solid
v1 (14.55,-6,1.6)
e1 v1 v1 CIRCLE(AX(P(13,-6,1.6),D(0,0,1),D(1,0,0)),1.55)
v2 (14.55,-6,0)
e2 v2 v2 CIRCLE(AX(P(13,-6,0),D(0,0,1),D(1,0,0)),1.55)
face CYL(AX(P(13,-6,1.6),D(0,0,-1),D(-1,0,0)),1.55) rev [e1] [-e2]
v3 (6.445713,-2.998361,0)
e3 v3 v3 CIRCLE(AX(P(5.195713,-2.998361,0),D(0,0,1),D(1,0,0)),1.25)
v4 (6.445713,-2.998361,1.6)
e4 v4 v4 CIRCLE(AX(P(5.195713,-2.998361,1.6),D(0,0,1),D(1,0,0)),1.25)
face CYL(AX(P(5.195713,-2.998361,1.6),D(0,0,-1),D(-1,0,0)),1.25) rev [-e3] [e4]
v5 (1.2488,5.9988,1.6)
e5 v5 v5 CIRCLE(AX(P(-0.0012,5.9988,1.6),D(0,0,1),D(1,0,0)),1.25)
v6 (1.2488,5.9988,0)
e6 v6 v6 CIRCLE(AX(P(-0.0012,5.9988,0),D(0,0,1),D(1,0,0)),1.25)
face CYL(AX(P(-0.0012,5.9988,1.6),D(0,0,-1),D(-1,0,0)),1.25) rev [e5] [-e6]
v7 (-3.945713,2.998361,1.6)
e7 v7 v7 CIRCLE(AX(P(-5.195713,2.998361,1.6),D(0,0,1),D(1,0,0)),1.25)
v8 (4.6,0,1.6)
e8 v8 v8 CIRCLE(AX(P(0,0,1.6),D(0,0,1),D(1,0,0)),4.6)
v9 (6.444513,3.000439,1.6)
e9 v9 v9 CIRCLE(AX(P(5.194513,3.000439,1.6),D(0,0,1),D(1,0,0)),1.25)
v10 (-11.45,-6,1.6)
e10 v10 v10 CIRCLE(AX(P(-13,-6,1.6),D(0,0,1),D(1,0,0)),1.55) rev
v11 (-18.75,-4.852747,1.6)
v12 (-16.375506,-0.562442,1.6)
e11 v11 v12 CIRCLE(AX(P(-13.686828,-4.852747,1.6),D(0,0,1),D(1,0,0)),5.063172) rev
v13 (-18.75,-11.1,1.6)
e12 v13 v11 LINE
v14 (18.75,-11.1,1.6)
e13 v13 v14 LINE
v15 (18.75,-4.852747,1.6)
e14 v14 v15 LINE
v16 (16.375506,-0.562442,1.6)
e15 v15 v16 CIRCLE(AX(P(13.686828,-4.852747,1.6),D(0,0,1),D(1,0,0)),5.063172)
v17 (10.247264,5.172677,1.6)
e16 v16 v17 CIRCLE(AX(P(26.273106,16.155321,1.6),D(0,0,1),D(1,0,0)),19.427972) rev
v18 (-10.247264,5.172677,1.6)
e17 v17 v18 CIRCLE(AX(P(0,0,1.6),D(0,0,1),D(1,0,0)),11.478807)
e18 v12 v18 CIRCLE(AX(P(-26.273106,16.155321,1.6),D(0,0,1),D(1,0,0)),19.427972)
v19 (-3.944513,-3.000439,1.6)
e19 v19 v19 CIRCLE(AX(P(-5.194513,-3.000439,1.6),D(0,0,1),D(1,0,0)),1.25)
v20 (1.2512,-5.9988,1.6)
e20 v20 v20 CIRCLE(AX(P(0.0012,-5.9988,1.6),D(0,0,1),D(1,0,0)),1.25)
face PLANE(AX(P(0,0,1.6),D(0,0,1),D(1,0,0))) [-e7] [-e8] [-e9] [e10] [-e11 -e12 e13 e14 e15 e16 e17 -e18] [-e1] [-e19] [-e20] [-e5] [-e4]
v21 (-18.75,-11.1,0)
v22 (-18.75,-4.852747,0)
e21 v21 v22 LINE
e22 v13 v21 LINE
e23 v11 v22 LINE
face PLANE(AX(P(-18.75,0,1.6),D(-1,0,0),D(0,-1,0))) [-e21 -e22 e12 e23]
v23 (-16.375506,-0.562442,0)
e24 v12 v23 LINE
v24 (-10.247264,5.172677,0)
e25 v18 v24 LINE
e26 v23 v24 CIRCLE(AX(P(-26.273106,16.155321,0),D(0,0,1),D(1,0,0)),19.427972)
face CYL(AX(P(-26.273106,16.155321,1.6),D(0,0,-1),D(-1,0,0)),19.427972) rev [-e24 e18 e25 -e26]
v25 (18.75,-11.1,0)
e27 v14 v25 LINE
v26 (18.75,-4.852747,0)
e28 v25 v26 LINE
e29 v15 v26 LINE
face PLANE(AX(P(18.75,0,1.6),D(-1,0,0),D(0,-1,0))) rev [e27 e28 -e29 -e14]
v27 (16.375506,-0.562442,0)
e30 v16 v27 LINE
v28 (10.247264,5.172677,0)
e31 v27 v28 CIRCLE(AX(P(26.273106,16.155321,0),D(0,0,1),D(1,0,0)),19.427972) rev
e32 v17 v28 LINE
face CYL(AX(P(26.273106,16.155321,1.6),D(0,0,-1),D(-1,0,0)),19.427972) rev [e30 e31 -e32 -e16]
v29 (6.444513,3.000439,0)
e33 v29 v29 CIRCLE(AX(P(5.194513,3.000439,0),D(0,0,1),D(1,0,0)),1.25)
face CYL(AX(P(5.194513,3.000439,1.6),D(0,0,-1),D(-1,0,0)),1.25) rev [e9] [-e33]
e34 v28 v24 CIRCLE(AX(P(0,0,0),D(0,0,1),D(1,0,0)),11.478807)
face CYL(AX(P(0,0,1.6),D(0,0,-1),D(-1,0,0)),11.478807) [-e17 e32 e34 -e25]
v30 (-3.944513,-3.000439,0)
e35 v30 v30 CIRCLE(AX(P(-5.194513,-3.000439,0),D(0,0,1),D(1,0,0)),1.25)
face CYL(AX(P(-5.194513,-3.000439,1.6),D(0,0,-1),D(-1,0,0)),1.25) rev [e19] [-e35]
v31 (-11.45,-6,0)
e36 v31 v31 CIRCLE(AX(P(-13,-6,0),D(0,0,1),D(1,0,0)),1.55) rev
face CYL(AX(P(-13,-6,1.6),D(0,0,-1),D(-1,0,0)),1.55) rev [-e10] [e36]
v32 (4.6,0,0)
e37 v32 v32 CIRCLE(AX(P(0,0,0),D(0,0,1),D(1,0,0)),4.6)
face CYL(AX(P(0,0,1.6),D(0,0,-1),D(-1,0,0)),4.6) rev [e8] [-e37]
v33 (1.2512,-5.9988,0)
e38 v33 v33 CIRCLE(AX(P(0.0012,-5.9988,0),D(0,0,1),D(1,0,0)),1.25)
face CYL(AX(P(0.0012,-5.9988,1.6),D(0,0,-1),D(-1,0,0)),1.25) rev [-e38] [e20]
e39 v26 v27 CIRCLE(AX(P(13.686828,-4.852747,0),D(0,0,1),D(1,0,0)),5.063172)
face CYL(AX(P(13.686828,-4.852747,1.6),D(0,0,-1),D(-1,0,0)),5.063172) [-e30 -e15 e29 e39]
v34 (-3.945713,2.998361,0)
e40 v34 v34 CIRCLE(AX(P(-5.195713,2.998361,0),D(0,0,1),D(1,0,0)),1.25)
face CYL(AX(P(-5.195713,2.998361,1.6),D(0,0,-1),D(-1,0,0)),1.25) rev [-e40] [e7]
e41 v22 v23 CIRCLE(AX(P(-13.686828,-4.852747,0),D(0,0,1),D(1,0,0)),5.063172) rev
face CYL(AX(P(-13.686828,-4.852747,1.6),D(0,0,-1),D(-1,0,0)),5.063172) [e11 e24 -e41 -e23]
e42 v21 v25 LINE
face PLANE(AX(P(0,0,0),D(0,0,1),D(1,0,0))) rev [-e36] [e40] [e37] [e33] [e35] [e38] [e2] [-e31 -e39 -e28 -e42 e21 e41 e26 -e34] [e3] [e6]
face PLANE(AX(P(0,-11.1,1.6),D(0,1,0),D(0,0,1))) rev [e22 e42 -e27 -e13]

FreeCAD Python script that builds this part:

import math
import FreeCAD as App
import Part
import Sketcher
Q = App.Units.Quantity

doc = App.newDocument("Part")
body = doc.addObject("PartDesign::Body", "Body")

sketch1 = body.newObject("Sketcher::SketchObject", "Sketch")
sketch1.AttachmentSupport = (doc.getObject("XY_Plane"), [""])
sketch1.MapMode = "FlatFace"
sketch1.addGeometry(Part.LineSegment(App.Vector(-18.75, -11.1, 0), App.Vector(18.75, -11.1, 0)), False)
sketch1.addGeometry(Part.LineSegment(App.Vector(18.75, -11.1, 0), App.Vector(18.75, -4.852747, 0)), False)
sketch1.addGeometry(Part.ArcOfCircle(Part.Circle(App.Vector(13.686828, -4.852747, 0), App.Vector(0, 0, 1), 5.063172), math.radians(0), math.radians(57.925165)), False)
sketch1.addGeometry(Part.ArcOfCircle(Part.Circle(App.Vector(26.273106, 16.155321, 0), App.Vector(0, 0, 1), 19.427972), math.radians(-145.57683), math.radians(-120.627268)), False)
sketch1.addGeometry(Part.ArcOfCircle(Part.Circle(App.Vector(0, 0, 0), App.Vector(0, 0, 1), 11.478807), math.radians(26.784011), math.radians(153.215989)), False)
sketch1.addGeometry(Part.ArcOfCircle(Part.Circle(App.Vector(-26.273106, 16.155321, 0), App.Vector(0, 0, 1), 19.427972), math.radians(-59.372732), math.radians(-34.42317)), False)
sketch1.addGeometry(Part.ArcOfCircle(Part.Circle(App.Vector(-13.686828, -4.852747, 0), App.Vector(0, 0, 1), 5.063172), math.radians(122.074835), math.radians(180)), False)
sketch1.addGeometry(Part.LineSegment(App.Vector(-18.75, -4.852747, 0), App.Vector(-18.75, -11.1, 0)), False)
sketch1.addGeometry(Part.Circle(App.Vector(-13, -6, 0), App.Vector(0, 0, 1), 1.55), False)
sketch1.addGeometry(Part.Circle(App.Vector(-5.194513, -3.000439, 0), App.Vector(0, 0, 1), 1.25), False)
sketch1.addGeometry(Part.Circle(App.Vector(0.0012, -5.9988, 0), App.Vector(0, 0, 1), 1.25), False)
sketch1.addGeometry(Part.Circle(App.Vector(13, -6, 0), App.Vector(0, 0, 1), 1.55), False)
sketch1.addGeometry(Part.Circle(App.Vector(5.195713, -2.998361, 0), App.Vector(0, 0, 1), 1.25), False)
sketch1.addGeometry(Part.Circle(App.Vector(0, 0, 0), App.Vector(0, 0, 1), 4.6), False)
sketch1.addGeometry(Part.Circle(App.Vector(-5.195713, 2.998361, 0), App.Vector(0, 0, 1), 1.25), False)
sketch1.addGeometry(Part.Circle(App.Vector(-0.0012, 5.9988, 0), App.Vector(0, 0, 1), 1.25), False)
sketch1.addGeometry(Part.Circle(App.Vector(5.194513, 3.000439, 0), App.Vector(0, 0, 1), 1.25), False)
sketch1.addConstraint(Sketcher.Constraint("Coincident", 0, 2, 1, 1))
sketch1.addConstraint(Sketcher.Constraint("Tangent", 1, 2, 2, 1))
sketch1.addConstraint(Sketcher.Constraint("Coincident", 2, 2, 3, 2))
sketch1.addConstraint(Sketcher.Constraint("Coincident", 3, 1, 4, 1))
sketch1.addConstraint(Sketcher.Constraint("Coincident", 4, 2, 5, 2))
sketch1.addConstraint(Sketcher.Constraint("Coincident", 5, 1, 6, 1))
sketch1.addConstraint(Sketcher.Constraint("Tangent", 6, 2, 7, 1))
sketch1.addConstraint(Sketcher.Constraint("Coincident", 7, 2, 0, 1))
sketch1.addConstraint(Sketcher.Constraint("Horizontal", 0))
sketch1.addConstraint(Sketcher.Constraint("Vertical", 1))
sketch1.addConstraint(Sketcher.Constraint("Vertical", 7))
sketch1.addConstraint(Sketcher.Constraint("Coincident", 4, 3, -1, 1))
sketch1.addConstraint(Sketcher.Constraint("Coincident", 13, 3, -1, 1))
sketch1.addConstraint(Sketcher.Constraint("Equal", 3, 5))
sketch1.addConstraint(Sketcher.Constraint("Equal", 2, 6))
sketch1.addConstraint(Sketcher.Constraint("Equal", 9, 10))
sketch1.addConstraint(Sketcher.Constraint("Equal", 8, 11))
sketch1.addConstraint(Sketcher.Constraint("Equal", 10, 12))
sketch1.addConstraint(Sketcher.Constraint("Equal", 12, 14))
sketch1.addConstraint(Sketcher.Constraint("Equal", 14, 15))
sketch1.addConstraint(Sketcher.Constraint("Equal", 15, 16))
sketch1.addConstraint(Sketcher.Constraint("Symmetric", 12, 3, 14, 3, -1, 1))
sketch1.addConstraint(Sketcher.Constraint("Symmetric", 10, 3, 15, 3, -1, 1))
sketch1.addConstraint(Sketcher.Constraint("Symmetric", 9, 3, 16, 3, -1, 1))
sketch1.addConstraint(Sketcher.Constraint("Symmetric", 3, 3, 5, 3, -2))
sketch1.addConstraint(Sketcher.Constraint("Symmetric", 2, 3, 6, 3, -2))
sketch1.addConstraint(Sketcher.Constraint("Symmetric", 8, 3, 11, 3, -2))
sketch1.addConstraint(Sketcher.Constraint("Diameter", 8, Q("3.1 mm")))
sketch1.addConstraint(Sketcher.Constraint("Diameter", 9, Q("2.5 mm")))
sketch1.addConstraint(Sketcher.Constraint("Diameter", 13, Q("9.2 mm")))
sketch1.addConstraint(Sketcher.Constraint("DistanceX", 0, 1, 0, 2, Q("37.5 mm")))
sketch1.addConstraint(Sketcher.Constraint("DistanceX", 8, 3, -1, 1, Q("13 mm")))
sketch1.addConstraint(Sketcher.Constraint("DistanceY", 8, 3, -1, 1, Q("6 mm")))
sketch1.addConstraint(Sketcher.Constraint("DistanceY", 0, 2, -1, 1, Q("11.1 mm")))
sketch1.addConstraint(Sketcher.Constraint("Radius", 3, Q("19.427972 mm")))
sketch1.addConstraint(Sketcher.Constraint("Radius", 2, Q("5.063172 mm")))
sketch1.addConstraint(Sketcher.Constraint("Radius", 4, Q("11.478807 mm")))
sketch1.addConstraint(Sketcher.Constraint("DistanceX", -1, 1, 10, 3, Q("0.0012 mm")))
sketch1.addConstraint(Sketcher.Constraint("DistanceY", 10, 3, -1, 1, Q("5.9988 mm")))
sketch1.addConstraint(Sketcher.Constraint("DistanceX", 14, 3, 9, 3, Q("0.0012 mm")))
sketch1.addConstraint(Sketcher.Constraint("DistanceY", 9, 3, 14, 3, Q("5.9988 mm")))
sketch1.addConstraint(Sketcher.Constraint("DistanceY", 1, 1, 1, 2, Q("6.247253 mm")))
sketch1.addConstraint(Sketcher.Constraint("DistanceY", -1, 1, 3, 3, Q("16.155321 mm")))
sketch1.addConstraint(Sketcher.Constraint("DistanceY", 9, 3, -1, 1, Q("3.000439 mm")))
sketch1.addConstraint(Sketcher.Constraint("DistanceY", 2, 2, -1, 1, Q("0.562442 mm")))
sketch1.addConstraint(Sketcher.Constraint("DistanceX", 9, 3, 2, 3, Q("18.881341 mm")))
pad1 = body.newObject("PartDesign::Pad", "Pad")
pad1.Profile = sketch1
pad1.Length = 1.6

doc.recompute()
